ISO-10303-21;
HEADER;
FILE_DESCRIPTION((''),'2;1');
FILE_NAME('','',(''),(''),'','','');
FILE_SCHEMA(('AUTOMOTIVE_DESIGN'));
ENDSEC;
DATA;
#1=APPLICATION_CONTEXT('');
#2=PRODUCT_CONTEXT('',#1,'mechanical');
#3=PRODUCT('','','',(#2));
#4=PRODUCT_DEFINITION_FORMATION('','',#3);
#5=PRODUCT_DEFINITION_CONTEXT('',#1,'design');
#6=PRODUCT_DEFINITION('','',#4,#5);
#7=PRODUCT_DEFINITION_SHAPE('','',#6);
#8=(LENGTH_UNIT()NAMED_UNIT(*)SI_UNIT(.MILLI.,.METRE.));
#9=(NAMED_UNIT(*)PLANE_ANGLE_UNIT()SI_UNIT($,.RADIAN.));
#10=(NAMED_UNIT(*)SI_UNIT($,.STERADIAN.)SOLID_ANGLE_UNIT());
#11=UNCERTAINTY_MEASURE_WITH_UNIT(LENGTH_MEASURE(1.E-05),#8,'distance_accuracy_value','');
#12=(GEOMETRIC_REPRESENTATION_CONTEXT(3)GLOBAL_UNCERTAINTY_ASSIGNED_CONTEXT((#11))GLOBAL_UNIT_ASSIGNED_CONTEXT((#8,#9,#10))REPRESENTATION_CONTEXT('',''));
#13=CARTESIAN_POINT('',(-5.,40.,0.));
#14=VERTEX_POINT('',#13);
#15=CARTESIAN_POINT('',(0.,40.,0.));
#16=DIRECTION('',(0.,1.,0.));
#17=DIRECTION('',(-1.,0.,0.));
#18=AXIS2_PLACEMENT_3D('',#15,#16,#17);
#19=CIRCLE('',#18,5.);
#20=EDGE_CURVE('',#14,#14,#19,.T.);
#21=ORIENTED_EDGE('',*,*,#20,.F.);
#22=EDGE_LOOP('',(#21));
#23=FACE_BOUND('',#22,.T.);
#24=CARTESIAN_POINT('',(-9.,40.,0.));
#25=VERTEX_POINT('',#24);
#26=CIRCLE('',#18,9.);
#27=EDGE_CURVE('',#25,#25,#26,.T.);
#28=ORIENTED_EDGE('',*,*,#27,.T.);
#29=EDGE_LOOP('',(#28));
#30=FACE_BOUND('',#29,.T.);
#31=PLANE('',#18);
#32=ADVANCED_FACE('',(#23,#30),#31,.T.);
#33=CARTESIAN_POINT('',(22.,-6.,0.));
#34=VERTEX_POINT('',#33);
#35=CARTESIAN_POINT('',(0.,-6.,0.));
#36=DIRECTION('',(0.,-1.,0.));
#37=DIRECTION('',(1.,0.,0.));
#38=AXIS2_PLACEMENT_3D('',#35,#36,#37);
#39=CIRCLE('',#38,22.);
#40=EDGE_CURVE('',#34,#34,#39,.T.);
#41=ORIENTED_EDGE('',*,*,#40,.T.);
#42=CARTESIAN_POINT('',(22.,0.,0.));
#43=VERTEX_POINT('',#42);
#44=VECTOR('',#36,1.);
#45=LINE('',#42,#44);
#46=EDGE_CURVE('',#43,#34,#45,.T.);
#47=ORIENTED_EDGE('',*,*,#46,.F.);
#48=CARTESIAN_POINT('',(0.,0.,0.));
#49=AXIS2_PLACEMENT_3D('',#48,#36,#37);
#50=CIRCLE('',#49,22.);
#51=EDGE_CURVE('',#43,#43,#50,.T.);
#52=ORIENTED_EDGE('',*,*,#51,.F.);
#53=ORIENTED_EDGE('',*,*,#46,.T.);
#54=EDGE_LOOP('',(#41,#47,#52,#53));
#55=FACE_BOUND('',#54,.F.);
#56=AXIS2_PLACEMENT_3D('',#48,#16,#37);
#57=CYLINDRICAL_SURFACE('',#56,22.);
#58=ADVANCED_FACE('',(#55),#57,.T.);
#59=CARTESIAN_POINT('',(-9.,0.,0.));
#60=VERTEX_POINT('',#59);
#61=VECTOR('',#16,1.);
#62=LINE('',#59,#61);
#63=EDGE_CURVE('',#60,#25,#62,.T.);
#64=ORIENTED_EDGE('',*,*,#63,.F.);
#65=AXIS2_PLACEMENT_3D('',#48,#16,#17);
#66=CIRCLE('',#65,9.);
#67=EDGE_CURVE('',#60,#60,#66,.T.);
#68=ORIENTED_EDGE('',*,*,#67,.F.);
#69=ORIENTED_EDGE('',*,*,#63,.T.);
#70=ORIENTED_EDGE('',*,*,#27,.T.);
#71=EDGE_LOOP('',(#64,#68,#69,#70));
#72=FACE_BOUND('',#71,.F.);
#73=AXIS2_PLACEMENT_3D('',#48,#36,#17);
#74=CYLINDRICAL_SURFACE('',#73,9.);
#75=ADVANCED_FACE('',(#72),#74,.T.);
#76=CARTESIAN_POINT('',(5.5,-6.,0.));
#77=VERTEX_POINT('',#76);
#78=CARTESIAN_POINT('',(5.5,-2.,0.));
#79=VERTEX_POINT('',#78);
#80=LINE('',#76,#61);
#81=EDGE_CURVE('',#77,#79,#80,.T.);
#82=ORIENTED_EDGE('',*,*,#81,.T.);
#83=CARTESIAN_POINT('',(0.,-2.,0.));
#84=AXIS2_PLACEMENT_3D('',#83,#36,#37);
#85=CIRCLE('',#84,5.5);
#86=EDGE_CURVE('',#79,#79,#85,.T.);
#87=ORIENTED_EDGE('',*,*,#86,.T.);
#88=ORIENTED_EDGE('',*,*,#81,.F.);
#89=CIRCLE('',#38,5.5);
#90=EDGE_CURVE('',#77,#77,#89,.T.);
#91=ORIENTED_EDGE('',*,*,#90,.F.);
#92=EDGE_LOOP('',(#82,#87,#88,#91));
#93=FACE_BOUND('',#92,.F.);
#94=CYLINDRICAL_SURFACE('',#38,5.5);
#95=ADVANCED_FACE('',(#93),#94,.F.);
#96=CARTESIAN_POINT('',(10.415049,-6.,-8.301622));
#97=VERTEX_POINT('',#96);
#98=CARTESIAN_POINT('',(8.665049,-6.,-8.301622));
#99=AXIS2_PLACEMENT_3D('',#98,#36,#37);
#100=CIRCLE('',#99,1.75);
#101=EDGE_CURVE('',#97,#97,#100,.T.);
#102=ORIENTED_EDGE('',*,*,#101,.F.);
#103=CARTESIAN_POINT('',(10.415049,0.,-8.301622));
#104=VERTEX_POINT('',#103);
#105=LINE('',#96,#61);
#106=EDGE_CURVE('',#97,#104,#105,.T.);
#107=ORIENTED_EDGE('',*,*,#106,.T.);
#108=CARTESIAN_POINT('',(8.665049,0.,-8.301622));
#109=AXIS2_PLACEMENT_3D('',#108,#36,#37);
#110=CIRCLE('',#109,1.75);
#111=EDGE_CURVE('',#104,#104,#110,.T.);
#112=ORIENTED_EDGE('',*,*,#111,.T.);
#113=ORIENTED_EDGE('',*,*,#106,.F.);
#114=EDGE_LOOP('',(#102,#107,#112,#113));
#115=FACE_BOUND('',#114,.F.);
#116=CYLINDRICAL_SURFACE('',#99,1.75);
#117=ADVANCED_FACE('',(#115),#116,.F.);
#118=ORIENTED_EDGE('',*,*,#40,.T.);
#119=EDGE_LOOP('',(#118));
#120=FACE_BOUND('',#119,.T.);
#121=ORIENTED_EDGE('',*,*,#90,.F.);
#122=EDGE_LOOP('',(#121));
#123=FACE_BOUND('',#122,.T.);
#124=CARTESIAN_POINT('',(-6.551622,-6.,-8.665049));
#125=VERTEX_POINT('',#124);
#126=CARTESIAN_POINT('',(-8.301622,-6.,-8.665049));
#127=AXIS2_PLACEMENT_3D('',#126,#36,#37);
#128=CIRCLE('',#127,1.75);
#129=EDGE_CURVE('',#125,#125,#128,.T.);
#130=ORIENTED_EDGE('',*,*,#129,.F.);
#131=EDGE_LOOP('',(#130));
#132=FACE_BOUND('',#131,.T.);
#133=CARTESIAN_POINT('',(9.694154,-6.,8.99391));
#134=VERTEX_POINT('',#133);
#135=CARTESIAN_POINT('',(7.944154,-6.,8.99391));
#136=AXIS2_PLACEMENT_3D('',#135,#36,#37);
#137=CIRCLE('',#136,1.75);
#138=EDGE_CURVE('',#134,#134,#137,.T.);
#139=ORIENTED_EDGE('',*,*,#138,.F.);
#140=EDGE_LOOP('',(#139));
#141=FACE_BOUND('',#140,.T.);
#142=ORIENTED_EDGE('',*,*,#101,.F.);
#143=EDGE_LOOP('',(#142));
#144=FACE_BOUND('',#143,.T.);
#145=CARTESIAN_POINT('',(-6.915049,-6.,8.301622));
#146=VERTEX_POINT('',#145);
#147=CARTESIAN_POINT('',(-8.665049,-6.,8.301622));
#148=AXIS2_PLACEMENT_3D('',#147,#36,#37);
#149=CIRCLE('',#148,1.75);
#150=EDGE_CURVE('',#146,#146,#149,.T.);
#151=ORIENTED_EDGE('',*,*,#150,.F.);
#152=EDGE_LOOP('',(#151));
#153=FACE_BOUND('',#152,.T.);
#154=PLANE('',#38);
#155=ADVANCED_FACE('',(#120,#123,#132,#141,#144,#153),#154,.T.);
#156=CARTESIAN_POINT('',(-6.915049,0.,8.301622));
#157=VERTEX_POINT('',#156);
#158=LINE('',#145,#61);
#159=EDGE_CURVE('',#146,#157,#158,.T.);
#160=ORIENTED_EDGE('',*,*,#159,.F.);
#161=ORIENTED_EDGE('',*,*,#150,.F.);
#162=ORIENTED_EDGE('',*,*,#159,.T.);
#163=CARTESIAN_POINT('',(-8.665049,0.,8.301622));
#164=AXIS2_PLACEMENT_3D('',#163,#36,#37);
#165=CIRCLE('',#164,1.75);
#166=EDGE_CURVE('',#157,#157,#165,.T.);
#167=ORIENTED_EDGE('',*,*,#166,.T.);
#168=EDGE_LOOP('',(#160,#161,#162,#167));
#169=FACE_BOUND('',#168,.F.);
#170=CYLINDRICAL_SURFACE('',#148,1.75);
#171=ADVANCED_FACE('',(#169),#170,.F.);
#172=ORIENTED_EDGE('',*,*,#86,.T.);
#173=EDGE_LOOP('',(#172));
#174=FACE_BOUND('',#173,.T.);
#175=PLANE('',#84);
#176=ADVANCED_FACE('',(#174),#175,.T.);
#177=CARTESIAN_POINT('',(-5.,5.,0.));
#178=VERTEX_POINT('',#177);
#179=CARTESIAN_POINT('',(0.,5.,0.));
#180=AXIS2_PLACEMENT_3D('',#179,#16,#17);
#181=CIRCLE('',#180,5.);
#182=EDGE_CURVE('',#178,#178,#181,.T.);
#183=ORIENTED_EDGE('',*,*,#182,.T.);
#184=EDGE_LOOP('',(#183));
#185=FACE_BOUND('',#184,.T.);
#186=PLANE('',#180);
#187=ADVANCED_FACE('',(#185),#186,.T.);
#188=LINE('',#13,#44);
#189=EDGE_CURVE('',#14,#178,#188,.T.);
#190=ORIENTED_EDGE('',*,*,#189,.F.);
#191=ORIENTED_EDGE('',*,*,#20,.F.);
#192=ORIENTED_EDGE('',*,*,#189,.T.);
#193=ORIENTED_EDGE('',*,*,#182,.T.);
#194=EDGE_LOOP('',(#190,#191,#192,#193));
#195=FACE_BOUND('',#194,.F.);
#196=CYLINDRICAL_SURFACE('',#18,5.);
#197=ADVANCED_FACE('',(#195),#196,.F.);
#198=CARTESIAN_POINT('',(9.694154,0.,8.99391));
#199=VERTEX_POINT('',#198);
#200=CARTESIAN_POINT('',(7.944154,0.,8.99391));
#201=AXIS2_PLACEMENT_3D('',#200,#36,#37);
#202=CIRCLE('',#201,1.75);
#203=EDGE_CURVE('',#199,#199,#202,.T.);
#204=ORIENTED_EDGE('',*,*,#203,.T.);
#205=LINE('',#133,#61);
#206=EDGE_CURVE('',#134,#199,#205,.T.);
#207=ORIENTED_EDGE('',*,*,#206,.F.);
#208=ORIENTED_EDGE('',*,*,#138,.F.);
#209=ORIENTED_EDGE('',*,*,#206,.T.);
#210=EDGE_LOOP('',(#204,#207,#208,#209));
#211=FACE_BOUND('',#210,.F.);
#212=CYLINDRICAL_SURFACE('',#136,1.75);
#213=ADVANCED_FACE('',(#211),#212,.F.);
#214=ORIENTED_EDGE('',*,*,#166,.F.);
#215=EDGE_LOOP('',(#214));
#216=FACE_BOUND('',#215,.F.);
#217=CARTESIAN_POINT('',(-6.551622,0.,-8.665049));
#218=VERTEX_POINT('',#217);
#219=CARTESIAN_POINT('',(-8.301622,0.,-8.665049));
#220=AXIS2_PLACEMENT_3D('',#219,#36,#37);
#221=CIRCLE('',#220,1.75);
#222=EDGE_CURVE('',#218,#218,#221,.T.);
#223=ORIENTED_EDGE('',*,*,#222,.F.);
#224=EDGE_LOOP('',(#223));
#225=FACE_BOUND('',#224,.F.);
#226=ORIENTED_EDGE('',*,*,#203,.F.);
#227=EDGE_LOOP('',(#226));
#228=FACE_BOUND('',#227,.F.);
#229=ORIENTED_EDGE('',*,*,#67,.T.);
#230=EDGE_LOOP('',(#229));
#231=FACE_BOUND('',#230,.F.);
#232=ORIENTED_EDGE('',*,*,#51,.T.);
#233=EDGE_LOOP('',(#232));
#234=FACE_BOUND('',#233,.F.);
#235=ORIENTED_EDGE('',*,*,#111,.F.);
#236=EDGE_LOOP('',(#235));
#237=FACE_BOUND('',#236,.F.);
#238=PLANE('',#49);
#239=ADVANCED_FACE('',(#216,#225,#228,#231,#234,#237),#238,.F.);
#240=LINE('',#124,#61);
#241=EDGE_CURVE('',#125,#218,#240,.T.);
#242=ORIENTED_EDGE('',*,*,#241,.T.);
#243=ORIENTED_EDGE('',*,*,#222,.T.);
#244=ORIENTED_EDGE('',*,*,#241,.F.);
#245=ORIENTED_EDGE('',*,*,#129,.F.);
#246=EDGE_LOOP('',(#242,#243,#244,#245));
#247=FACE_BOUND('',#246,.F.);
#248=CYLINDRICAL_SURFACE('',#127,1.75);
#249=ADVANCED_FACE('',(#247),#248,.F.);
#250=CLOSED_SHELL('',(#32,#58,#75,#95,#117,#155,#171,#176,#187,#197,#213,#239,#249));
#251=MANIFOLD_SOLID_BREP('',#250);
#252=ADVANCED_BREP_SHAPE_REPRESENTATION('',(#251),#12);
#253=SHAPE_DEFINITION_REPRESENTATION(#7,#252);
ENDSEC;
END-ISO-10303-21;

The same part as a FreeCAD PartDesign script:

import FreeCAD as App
import Part
import Sketcher
from FreeCAD import Vector

doc = App.newDocument("Part")
body = doc.addObject("PartDesign::Body", "Body")

sketch1 = body.newObject("Sketcher::SketchObject", "Sketch")
sketch1.AttachmentSupport = (doc.getObject("XZ_Plane"), [""])
sketch1.MapMode = "FlatFace"
sketch1.addGeometry(Part.Circle(Vector(0, 0, 0), Vector(0, 0, 1), 22), False)
sketch1.addConstraint([
    Sketcher.Constraint("Coincident", 0, 3, -1, 1),
    Sketcher.Constraint("Diameter", 0, 44.0),
])
pad1 = body.newObject("PartDesign::Pad", "Pad")
pad1.Profile = sketch1
pad1.Length = 6

sketch2 = body.newObject("Sketcher::SketchObject", "Sketch001")
sketch2.AttachmentSupport = (doc.getObject("XZ_Plane"), [""])
sketch2.MapMode = "FlatFace"
sketch2.AttachmentOffset = App.Placement(Vector(0, 0, 6), App.Rotation())
sketch2.addGeometry([
    Part.Circle(Vector(-8.3, -8.7, 0), Vector(0, 0, 1), 1.8),
    Part.Circle(Vector(8.7, -8.3, 0), Vector(0, 0, 1), 1.8),
    Part.Circle(Vector(-8.7, 8.3, 0), Vector(0, 0, 1), 1.8),
    Part.Circle(Vector(7.9, 9, 0), Vector(0, 0, 1), 1.8),
], False)
sketch2.addConstraint([
    Sketcher.Constraint("Equal", 0, 1),
    Sketcher.Constraint("Equal", 1, 2),
    Sketcher.Constraint("Equal", 2, 3),
    Sketcher.Constraint("Symmetric", 1, 3, 2, 3, -1, 1),
    Sketcher.Constraint("Diameter", 0, 3.5),
    Sketcher.Constraint("DistanceY", 0, 3, -1, 1, 8.665049),
    Sketcher.Constraint("DistanceX", -1, 1, 1, 3, 8.665049),
    Sketcher.Constraint("DistanceY", -1, 1, 3, 3, 8.99391),
    Sketcher.Constraint("DistanceX", 0, 3, 1, 3, 16.966671),
    Sketcher.Constraint("DistanceY", 0, 3, 2, 3, 16.966671),
    Sketcher.Constraint("DistanceX", -1, 1, 3, 3, 7.944154),
])
pocket1 = body.newObject("PartDesign::Pocket", "Pocket")
pocket1.Profile = sketch2
pocket1.Type = "ThroughAll"

sketch3 = body.newObject("Sketcher::SketchObject", "Sketch002")
sketch3.AttachmentSupport = (doc.getObject("XZ_Plane"), [""])
sketch3.MapMode = "FlatFace"
sketch3.AttachmentOffset = App.Placement(Vector(0, 0, 6), App.Rotation())
sketch3.addGeometry(Part.Circle(Vector(0, 0, 0), Vector(0, 0, 1), 6), False)
sketch3.addConstraint([
    Sketcher.Constraint("Coincident", 0, 3, -1, 1),
    Sketcher.Constraint("Diameter", 0, 11.0),
])
pocket2 = body.newObject("PartDesign::Pocket", "Pocket001")
pocket2.Profile = sketch3
pocket2.Length = 4

sketch4 = body.newObject("Sketcher::SketchObject", "Sketch003")
sketch4.AttachmentSupport = (doc.getObject("XZ_Plane"), [""])
sketch4.MapMode = "FlatFace"
sketch4.addGeometry(Part.Circle(Vector(0, 0, 0), Vector(0, 0, 1), 9), False)
sketch4.addConstraint([
    Sketcher.Constraint("Coincident", 0, 3, -1, 1),
    Sketcher.Constraint("Diameter", 0, 18.0),
])
pad2 = body.newObject("PartDesign::Pad", "Pad001")
pad2.Profile = sketch4
pad2.Length = 40
pad2.Reversed = True

sketch5 = body.newObject("Sketcher::SketchObject", "Sketch004")
sketch5.AttachmentSupport = (doc.getObject("XZ_Plane"), [""])
sketch5.MapMode = "FlatFace"
sketch5.AttachmentOffset = App.Placement(Vector(0, 0, -40), App.Rotation())
sketch5.addGeometry(Part.Circle(Vector(0, 0, 0), Vector(0, 0, 1), 5), False)
sketch5.addConstraint([
    Sketcher.Constraint("Coincident", 0, 3, -1, 1),
    Sketcher.Constraint("Diameter", 0, 10.0),
])
pocket3 = body.newObject("PartDesign::Pocket", "Pocket002")
pocket3.Profile = sketch5
pocket3.Length = 35
pocket3.Reversed = True

doc.recompute()
